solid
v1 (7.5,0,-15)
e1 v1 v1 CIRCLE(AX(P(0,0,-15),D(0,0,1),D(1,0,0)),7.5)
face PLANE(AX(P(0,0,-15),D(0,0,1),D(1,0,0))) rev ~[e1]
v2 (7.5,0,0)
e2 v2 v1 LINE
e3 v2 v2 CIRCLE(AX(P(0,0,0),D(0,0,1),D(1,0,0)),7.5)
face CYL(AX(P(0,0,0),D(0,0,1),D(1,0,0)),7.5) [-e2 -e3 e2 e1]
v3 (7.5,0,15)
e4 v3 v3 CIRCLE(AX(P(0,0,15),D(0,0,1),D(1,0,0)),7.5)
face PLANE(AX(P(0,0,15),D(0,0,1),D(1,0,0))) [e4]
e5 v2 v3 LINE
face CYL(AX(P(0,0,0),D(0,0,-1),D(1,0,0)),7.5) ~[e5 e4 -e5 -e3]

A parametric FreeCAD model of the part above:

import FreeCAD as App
import Part
import Sketcher

doc = App.newDocument("Part")
body = doc.addObject("PartDesign::Body", "Body")

# Sketch on XY plane
sketch1 = doc.addObject("Sketcher::SketchObject", "Sketch")
body.addObject(sketch1)
sketch1.AttachmentSupport = (doc.XY_Plane, [""])
sketch1.MapMode = "FlatFace"
sketch1.addGeometry(Part.Circle(App.Vector(0, 0, 0), App.Vector(0, 0, 1), 8), False)
sketch1.addConstraint([
    Sketcher.Constraint("Coincident", 0, 3, -1, 1),
    Sketcher.Constraint("Diameter", 0, 15.0),
])
pad1 = doc.addObject("PartDesign::Pad", "Pad")
body.addObject(pad1)
pad1.Profile = sketch1
pad1.Length = 30
pad1.Midplane = True

doc.recompute()
